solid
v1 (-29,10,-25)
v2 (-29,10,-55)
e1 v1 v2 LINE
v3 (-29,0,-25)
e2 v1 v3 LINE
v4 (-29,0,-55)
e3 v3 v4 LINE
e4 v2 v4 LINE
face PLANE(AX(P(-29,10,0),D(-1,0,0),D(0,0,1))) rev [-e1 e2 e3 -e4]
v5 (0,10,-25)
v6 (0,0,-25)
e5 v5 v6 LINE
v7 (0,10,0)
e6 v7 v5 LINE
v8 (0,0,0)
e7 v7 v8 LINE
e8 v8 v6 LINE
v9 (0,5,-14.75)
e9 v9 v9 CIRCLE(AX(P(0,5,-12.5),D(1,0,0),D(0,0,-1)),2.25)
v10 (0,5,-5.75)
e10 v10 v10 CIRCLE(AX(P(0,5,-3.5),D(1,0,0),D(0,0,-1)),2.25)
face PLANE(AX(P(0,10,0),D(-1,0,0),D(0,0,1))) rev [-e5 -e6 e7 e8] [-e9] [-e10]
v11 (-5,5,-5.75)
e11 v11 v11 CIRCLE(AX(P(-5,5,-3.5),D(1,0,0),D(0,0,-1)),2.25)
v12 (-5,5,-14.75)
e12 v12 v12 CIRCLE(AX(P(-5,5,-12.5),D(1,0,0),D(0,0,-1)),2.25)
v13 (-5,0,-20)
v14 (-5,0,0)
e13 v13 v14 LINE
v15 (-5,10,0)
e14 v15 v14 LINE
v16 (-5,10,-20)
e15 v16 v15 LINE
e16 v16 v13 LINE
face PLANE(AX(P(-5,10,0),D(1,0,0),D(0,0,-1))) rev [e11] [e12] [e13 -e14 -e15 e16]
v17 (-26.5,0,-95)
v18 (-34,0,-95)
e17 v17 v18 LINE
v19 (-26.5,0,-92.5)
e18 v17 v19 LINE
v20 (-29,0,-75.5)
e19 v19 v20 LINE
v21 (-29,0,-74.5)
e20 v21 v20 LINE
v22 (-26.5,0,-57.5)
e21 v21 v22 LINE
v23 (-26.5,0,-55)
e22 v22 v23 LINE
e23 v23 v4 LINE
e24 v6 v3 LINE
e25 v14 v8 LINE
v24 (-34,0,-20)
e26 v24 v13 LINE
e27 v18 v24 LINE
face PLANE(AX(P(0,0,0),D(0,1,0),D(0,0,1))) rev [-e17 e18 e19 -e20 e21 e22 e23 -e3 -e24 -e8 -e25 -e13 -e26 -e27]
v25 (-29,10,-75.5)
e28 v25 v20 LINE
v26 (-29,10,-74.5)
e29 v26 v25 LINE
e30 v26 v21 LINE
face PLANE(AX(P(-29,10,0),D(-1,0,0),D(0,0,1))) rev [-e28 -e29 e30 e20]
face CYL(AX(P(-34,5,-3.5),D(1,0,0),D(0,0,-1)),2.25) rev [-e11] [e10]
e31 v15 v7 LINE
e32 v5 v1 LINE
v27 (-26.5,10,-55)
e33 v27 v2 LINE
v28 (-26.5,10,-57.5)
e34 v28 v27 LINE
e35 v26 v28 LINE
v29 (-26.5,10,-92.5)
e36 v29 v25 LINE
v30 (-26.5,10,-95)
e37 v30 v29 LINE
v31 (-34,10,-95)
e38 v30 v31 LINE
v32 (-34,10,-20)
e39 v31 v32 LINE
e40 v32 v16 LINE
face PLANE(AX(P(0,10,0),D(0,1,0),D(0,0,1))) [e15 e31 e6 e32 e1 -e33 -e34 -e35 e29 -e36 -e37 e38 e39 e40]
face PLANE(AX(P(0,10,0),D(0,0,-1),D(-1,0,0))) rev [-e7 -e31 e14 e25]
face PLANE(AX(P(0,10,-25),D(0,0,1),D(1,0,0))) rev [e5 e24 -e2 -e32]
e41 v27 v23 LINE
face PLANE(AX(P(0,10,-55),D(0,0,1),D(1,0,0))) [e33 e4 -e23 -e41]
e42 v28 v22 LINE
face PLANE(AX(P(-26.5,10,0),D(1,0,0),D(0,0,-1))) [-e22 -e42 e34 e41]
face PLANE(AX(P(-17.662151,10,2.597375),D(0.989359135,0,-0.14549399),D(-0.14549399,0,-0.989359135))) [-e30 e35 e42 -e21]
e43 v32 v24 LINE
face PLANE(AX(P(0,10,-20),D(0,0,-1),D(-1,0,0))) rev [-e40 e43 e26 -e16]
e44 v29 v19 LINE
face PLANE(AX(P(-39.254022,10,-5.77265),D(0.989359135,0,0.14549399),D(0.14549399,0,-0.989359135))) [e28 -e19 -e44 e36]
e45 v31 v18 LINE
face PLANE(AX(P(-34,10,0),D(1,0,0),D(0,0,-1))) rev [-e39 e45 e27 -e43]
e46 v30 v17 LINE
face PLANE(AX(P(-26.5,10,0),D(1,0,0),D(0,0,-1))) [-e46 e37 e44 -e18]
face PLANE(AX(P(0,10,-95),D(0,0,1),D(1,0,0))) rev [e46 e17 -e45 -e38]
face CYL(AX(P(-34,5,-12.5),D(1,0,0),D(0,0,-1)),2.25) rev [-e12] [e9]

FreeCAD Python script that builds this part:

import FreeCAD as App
import Part
import Sketcher
from FreeCAD import Vector

doc = App.newDocument("Part")
body = doc.addObject("PartDesign::Body", "Body")

# Sketch on XZ plane
sketch1 = doc.addObject("Sketcher::SketchObject", "Sketch")
body.addObject(sketch1)
sketch1.AttachmentSupport = (doc.XZ_Plane, [""])
sketch1.MapMode = "FlatFace"
sketch1.addGeometry(Part.LineSegment(Vector(-5, 0, 0), Vector(0, 0, 0)), False)
sketch1.addGeometry(Part.LineSegment(Vector(0, 0, 0), Vector(0, -25, 0)), False)
sketch1.addGeometry(Part.LineSegment(Vector(0, -25, 0), Vector(-29, -25, 0)), False)
sketch1.addGeometry(Part.LineSegment(Vector(-29, -25, 0), Vector(-29, -55, 0)), False)
sketch1.addGeometry(Part.LineSegment(Vector(-29, -55, 0), Vector(-26.5, -55, 0)), False)
sketch1.addGeometry(Part.LineSegment(Vector(-26.5, -55, 0), Vector(-26.5, -57.5, 0)), False)
sketch1.addGeometry(Part.LineSegment(Vector(-26.5, -57.5, 0), Vector(-29, -74.5, 0)), False)
sketch1.addGeometry(Part.LineSegment(Vector(-29, -74.5, 0), Vector(-29, -75.5, 0)), False)
sketch1.addGeometry(Part.LineSegment(Vector(-29, -75.5, 0), Vector(-26.5, -92.5, 0)), False)
sketch1.addGeometry(Part.LineSegment(Vector(-26.5, -92.5, 0), Vector(-26.5, -95, 0)), False)
sketch1.addGeometry(Part.LineSegment(Vector(-26.5, -95, 0), Vector(-34, -95, 0)), False)
sketch1.addGeometry(Part.LineSegment(Vector(-34, -95, 0), Vector(-34, -20, 0)), False)
sketch1.addGeometry(Part.LineSegment(Vector(-34, -20, 0), Vector(-5, -20, 0)), False)
sketch1.addGeometry(Part.LineSegment(Vector(-5, -20, 0), Vector(-5, 0, 0)), False)
sketch1.addConstraint(Sketcher.Constraint("Coincident", 0, 2, 1, 1))
sketch1.addConstraint(Sketcher.Constraint("Coincident", 1, 2, 2, 1))
sketch1.addConstraint(Sketcher.Constraint("Coincident", 2, 2, 3, 1))
sketch1.addConstraint(Sketcher.Constraint("Coincident", 3, 2, 4, 1))
sketch1.addConstraint(Sketcher.Constraint("Coincident", 4, 2, 5, 1))
sketch1.addConstraint(Sketcher.Constraint("Coincident", 5, 2, 6, 1))
sketch1.addConstraint(Sketcher.Constraint("Coincident", 6, 2, 7, 1))
sketch1.addConstraint(Sketcher.Constraint("Coincident", 7, 2, 8, 1))
sketch1.addConstraint(Sketcher.Constraint("Coincident", 8, 2, 9, 1))
sketch1.addConstraint(Sketcher.Constraint("Coincident", 9, 2, 10, 1))
sketch1.addConstraint(Sketcher.Constraint("Coincident", 10, 2, 11, 1))
sketch1.addConstraint(Sketcher.Constraint("Coincident", 11, 2, 12, 1))
sketch1.addConstraint(Sketcher.Constraint("Coincident", 12, 2, 13, 1))
sketch1.addConstraint(Sketcher.Constraint("Coincident", 13, 2, 0, 1))
sketch1.addConstraint(Sketcher.Constraint("Horizontal", 0))
sketch1.addConstraint(Sketcher.Constraint("Vertical", 1))
sketch1.addConstraint(Sketcher.Constraint("Horizontal", 2))
sketch1.addConstraint(Sketcher.Constraint("Vertical", 3))
sketch1.addConstraint(Sketcher.Constraint("Horizontal", 4))
sketch1.addConstraint(Sketcher.Constraint("Vertical", 5))
sketch1.addConstraint(Sketcher.Constraint("Vertical", 7))
sketch1.addConstraint(Sketcher.Constraint("Vertical", 9))
sketch1.addConstraint(Sketcher.Constraint("Horizontal", 10))
sketch1.addConstraint(Sketcher.Constraint("Vertical", 11))
sketch1.addConstraint(Sketcher.Constraint("Horizontal", 12))
sketch1.addConstraint(Sketcher.Constraint("Vertical", 13))
sketch1.addConstraint(Sketcher.Constraint("Coincident", 0, 2, -1, 1))
sketch1.addConstraint(Sketcher.Constraint("Vertical", 3, 2, 6, 2))
sketch1.addConstraint(Sketcher.Constraint("Vertical", 5, 2, 8, 2))
sketch1.addConstraint(Sketcher.Constraint("Equal", 2, 12))
sketch1.addConstraint(Sketcher.Constraint("Equal", 4, 5))
sketch1.addConstraint(Sketcher.Constraint("Equal", 5, 9))
sketch1.addConstraint(Sketcher.Constraint("Equal", 6, 8))
sketch1.addConstraint(Sketcher.Constraint("DistanceX", 0, 1, 0, 2, 5.0))
sketch1.addConstraint(Sketcher.Constraint("DistanceX", 2, 2, 2, 1, 29.0))
sketch1.addConstraint(Sketcher.Constraint("DistanceY", 1, 2, 1, 1, 25.0))
sketch1.addConstraint(Sketcher.Constraint("DistanceY", 3, 2, 3, 1, 30.0))
sketch1.addConstraint(Sketcher.Constraint("DistanceY", 7, 2, 7, 1, 1.0))
sketch1.addConstraint(Sketcher.Constraint("DistanceY", 11, 1, 11, 2, 75.0))
sketch1.addConstraint(Sketcher.Constraint("DistanceY", 13, 1, 13, 2, 20.0))
sketch1.addConstraint(Sketcher.Constraint("DistanceX", 4, 1, 4, 2, 2.5))
pad1 = doc.addObject("PartDesign::Pad", "Pad")
body.addObject(pad1)
pad1.Profile = sketch1
pad1.Length = 10
pad1.Reversed = True

# Sketch on YZ plane
sketch2 = doc.addObject("Sketcher::SketchObject", "Sketch001")
body.addObject(sketch2)
sketch2.AttachmentSupport = (doc.YZ_Plane, [""])
sketch2.MapMode = "FlatFace"
sketch2.addGeometry(Part.Circle(Vector(5, -3.5, 0), Vector(0, 0, 1), 2.2), False)
sketch2.addGeometry(Part.Circle(Vector(5, -12.5, 0), Vector(0, 0, 1), 2.2), False)
sketch2.addConstraint(Sketcher.Constraint("Equal", 0, 1))
sketch2.addConstraint(Sketcher.Constraint("Vertical", 0, 3, 1, 3))
sketch2.addConstraint(Sketcher.Constraint("Diameter", 0, 4.5))
sketch2.addConstraint(Sketcher.Constraint("DistanceX", -1, 1, 0, 3, 5.0))
sketch2.addConstraint(Sketcher.Constraint("DistanceY", 1, 3, 0, 3, 9.0))
sketch2.addConstraint(Sketcher.Constraint("DistanceY", 0, 3, -1, 1, 3.5))
pocket1 = doc.addObject("PartDesign::Pocket", "Pocket")
body.addObject(pocket1)
pocket1.Profile = sketch2
pocket1.Type = "ThroughAll"

doc.recompute()
